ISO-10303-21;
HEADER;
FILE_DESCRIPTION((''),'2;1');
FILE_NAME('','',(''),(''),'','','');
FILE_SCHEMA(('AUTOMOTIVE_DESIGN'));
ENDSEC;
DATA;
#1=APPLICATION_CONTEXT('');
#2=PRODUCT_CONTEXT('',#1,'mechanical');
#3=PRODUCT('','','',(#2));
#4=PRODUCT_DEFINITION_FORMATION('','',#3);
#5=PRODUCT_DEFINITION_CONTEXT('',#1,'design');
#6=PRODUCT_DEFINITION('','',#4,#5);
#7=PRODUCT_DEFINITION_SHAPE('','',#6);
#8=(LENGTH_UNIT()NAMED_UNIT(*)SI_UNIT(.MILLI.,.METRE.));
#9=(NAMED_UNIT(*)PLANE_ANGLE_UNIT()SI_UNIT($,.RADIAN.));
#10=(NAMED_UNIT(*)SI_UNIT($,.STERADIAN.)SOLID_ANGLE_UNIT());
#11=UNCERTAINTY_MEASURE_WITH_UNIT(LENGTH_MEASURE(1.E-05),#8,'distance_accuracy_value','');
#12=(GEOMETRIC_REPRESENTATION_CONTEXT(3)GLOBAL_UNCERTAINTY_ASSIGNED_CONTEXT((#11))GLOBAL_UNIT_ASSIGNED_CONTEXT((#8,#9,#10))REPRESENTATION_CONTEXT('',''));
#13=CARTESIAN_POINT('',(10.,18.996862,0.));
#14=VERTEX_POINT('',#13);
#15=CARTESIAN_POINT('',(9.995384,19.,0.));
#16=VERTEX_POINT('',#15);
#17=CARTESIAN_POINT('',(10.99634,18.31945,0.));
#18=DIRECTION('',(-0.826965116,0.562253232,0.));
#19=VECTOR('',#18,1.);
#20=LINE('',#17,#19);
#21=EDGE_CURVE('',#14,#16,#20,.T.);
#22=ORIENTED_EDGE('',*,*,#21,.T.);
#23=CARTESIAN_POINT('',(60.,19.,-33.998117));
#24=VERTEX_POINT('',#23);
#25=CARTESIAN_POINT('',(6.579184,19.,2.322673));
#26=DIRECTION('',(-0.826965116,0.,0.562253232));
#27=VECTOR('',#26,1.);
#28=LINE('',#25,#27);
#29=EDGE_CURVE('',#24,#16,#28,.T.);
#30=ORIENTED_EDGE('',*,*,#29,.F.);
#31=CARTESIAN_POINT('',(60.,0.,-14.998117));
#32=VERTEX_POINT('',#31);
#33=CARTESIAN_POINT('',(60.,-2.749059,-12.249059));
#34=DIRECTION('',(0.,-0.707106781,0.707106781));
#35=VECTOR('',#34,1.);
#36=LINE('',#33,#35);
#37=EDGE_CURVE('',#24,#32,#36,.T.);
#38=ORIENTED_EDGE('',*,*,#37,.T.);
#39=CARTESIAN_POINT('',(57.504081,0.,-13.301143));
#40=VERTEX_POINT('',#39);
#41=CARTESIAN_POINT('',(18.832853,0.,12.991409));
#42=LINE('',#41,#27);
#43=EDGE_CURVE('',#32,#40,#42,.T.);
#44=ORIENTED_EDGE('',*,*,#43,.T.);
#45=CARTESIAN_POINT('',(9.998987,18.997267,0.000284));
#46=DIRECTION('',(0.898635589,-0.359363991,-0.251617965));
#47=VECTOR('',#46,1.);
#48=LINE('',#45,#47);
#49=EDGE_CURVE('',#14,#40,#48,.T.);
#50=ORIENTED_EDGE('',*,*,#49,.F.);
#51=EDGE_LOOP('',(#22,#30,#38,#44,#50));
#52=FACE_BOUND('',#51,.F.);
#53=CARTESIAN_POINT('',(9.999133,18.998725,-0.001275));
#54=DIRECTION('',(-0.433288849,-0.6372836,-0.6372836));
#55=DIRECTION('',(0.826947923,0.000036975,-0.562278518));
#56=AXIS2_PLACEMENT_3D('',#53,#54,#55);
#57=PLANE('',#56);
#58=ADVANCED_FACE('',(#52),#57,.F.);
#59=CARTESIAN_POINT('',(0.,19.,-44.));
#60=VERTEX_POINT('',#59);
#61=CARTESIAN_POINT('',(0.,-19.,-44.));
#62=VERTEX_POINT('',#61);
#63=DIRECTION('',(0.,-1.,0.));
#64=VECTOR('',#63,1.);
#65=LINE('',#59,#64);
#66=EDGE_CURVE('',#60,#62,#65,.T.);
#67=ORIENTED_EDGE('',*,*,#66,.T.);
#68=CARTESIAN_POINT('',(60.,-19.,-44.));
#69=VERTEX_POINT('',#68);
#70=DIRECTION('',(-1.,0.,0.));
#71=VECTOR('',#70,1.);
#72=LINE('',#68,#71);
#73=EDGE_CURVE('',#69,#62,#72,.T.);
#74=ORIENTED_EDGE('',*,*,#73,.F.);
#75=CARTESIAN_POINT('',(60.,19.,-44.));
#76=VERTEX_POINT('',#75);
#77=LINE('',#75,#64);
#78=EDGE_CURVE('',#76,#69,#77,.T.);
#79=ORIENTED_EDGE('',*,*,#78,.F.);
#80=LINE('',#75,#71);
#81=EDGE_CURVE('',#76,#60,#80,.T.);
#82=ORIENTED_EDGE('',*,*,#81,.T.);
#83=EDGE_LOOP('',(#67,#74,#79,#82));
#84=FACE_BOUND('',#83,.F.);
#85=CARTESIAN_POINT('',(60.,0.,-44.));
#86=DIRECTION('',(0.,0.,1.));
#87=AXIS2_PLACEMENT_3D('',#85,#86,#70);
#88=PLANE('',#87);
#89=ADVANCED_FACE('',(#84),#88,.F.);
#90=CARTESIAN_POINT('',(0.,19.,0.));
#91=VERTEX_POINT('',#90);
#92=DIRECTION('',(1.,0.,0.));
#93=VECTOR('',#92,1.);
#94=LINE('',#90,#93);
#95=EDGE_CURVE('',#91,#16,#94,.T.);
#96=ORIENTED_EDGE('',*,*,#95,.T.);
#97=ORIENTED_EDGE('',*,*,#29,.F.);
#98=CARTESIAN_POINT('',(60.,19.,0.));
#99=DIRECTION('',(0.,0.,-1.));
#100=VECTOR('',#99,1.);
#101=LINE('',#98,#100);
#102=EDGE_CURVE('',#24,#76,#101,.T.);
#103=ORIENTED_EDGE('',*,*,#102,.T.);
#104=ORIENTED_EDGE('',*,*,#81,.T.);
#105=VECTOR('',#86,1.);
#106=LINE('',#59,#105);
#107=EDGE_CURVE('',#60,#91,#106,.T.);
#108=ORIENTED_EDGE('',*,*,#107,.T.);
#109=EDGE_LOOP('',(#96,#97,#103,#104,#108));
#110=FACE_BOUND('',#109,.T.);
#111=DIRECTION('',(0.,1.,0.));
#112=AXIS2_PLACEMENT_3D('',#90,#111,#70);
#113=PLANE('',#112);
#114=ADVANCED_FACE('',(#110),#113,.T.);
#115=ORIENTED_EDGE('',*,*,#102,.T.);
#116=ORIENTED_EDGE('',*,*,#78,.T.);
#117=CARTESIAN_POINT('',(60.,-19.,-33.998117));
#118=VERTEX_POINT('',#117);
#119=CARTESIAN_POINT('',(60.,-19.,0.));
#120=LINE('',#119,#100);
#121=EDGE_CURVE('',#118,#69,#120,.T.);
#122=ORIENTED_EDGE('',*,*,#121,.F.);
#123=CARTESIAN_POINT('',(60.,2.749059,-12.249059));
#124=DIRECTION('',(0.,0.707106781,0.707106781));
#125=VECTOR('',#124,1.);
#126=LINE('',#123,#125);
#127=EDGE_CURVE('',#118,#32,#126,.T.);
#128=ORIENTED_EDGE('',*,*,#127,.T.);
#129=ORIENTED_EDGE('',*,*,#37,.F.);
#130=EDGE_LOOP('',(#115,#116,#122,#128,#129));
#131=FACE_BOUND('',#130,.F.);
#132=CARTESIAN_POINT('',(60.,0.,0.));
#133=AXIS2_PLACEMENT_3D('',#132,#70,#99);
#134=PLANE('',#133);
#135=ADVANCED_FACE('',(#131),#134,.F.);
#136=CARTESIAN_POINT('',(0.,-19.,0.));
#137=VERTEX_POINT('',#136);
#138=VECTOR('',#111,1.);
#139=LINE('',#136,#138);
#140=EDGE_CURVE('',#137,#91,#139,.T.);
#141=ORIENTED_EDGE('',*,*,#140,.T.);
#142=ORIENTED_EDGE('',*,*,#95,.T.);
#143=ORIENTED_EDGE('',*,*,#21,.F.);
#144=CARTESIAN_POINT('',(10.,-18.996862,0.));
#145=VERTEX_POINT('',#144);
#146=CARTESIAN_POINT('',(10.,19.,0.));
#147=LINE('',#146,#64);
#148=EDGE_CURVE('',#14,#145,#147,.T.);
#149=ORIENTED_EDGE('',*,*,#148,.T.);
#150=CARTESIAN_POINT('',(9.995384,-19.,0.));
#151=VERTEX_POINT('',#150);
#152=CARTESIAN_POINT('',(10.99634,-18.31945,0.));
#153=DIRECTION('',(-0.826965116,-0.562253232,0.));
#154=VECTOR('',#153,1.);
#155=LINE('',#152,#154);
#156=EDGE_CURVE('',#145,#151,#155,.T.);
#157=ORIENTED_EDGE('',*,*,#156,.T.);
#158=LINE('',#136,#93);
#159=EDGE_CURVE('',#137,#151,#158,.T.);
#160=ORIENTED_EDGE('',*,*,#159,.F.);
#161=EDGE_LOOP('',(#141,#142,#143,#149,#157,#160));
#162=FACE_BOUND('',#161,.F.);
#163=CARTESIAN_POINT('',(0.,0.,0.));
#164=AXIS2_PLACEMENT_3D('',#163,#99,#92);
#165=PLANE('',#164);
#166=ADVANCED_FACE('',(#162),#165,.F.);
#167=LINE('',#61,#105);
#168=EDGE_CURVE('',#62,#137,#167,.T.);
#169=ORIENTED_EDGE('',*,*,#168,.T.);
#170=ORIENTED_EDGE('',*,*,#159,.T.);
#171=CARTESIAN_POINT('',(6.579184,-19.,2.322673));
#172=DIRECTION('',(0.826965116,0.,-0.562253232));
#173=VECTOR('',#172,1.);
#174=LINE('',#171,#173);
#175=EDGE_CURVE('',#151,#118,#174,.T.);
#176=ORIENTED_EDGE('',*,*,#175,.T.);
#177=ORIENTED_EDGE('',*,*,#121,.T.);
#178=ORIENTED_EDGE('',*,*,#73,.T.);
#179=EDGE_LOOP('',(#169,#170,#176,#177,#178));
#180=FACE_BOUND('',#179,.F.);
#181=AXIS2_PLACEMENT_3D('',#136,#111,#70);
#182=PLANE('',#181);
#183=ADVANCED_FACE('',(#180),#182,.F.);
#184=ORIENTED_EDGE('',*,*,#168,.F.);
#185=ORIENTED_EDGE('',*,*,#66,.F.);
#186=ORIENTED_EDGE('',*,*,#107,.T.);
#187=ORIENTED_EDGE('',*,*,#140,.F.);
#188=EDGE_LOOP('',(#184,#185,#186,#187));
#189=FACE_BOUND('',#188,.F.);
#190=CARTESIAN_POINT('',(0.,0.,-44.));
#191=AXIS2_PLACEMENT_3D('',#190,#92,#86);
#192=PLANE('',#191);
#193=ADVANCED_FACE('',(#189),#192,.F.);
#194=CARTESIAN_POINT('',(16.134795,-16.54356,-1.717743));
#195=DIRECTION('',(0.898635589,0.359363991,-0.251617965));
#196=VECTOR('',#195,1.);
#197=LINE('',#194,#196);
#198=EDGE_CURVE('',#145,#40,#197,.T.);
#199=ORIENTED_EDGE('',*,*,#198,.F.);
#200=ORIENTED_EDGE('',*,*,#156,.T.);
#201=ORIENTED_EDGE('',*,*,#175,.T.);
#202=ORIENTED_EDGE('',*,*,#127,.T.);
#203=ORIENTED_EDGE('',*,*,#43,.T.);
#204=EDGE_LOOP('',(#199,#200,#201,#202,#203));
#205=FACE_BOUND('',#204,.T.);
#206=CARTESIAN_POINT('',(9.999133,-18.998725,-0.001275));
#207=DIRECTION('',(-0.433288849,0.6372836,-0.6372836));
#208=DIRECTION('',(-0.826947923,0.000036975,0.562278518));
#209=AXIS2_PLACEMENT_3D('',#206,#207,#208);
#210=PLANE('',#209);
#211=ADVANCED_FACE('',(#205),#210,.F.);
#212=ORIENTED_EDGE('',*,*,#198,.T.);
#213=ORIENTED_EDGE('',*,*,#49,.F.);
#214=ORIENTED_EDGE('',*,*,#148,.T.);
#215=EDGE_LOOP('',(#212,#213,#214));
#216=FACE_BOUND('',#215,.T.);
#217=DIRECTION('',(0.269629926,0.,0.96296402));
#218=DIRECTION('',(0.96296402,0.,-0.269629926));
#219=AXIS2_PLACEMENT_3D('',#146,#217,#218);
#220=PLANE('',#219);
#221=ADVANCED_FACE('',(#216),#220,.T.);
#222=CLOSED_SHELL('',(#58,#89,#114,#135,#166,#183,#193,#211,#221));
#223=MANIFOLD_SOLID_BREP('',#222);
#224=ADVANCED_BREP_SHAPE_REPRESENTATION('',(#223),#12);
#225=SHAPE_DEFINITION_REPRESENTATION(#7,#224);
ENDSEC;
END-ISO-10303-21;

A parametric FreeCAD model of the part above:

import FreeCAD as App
import Part
import Sketcher
from FreeCAD import Vector

doc = App.newDocument("Part")
params = doc.addObject("Spreadsheet::Sheet", "Params")
for row, (alias, value) in enumerate([
    ("sketch1_width", "60 mm"),
    ("sketch1_height", "44 mm"),
    ("pad1_length", "38 mm"),
    ("sketch2_width", "50 mm"),
    ("sketch2_height", "14 mm"),
    ("pocket1_length", "40 mm"),
    ("pocket2_length", "40 mm"),
], start=1):
    params.set(f"A{row}", alias)
    params.set(f"B{row}", "=" + value)
    params.setAlias(f"B{row}", alias)

body = doc.addObject("PartDesign::Body", "Body")

# Sketch on XZ plane
sketch1 = doc.addObject("Sketcher::SketchObject", "Sketch")
body.addObject(sketch1)
sketch1.AttachmentSupport = (doc.XZ_Plane, [""])
sketch1.MapMode = "FlatFace"
sketch1.addGeometry(Part.LineSegment(Vector(0, -44, 0), Vector(0, 0, 0)), False)
sketch1.addGeometry(Part.LineSegment(Vector(0, 0, 0), Vector(60, 0, 0)), False)
sketch1.addGeometry(Part.LineSegment(Vector(60, 0, 0), Vector(60, -44, 0)), False)
sketch1.addGeometry(Part.LineSegment(Vector(60, -44, 0), Vector(0, -44, 0)), False)
sketch1.addConstraint(Sketcher.Constraint("Coincident", 0, 2, 1, 1))
sketch1.addConstraint(Sketcher.Constraint("Coincident", 1, 2, 2, 1))
sketch1.addConstraint(Sketcher.Constraint("Coincident", 2, 2, 3, 1))
sketch1.addConstraint(Sketcher.Constraint("Coincident", 3, 2, 0, 1))
sketch1.addConstraint(Sketcher.Constraint("Vertical", 0))
sketch1.addConstraint(Sketcher.Constraint("Horizontal", 1))
sketch1.addConstraint(Sketcher.Constraint("Vertical", 2))
sketch1.addConstraint(Sketcher.Constraint("Horizontal", 3))
sketch1.addConstraint(Sketcher.Constraint("Coincident", 0, 2, -1, 1))
sketch1.addConstraint(Sketcher.Constraint("DistanceX", 1, 1, 1, 2, 60.0))
sketch1.addConstraint(Sketcher.Constraint("DistanceY", 0, 1, 0, 2, 44.0))
sketch1.setExpression("Constraints[9]", "Params.sketch1_width")
sketch1.setExpression("Constraints[10]", "Params.sketch1_height")
pad1 = doc.addObject("PartDesign::Pad", "Pad")
body.addObject(pad1)
pad1.Profile = sketch1
pad1.setExpression("Length", "Params.pad1_length")
pad1.Midplane = True

# Sketch on XZ plane
sketch2 = doc.addObject("Sketcher::SketchObject", "Sketch001")
body.addObject(sketch2)
sketch2.AttachmentSupport = (doc.XZ_Plane, [""])
sketch2.MapMode = "FlatFace"
sketch2.AttachmentOffset = App.Placement(Vector(0, 0, -19), App.Rotation())
sketch2.addGeometry(Part.LineSegment(Vector(60, -14, 0), Vector(10, 0, 0)), False)
sketch2.addGeometry(Part.LineSegment(Vector(10, 0, 0), Vector(60, 0, 0)), False)
sketch2.addGeometry(Part.LineSegment(Vector(60, 0, 0), Vector(60, -14, 0)), False)
sketch2.addConstraint(Sketcher.Constraint("Coincident", 0, 2, 1, 1))
sketch2.addConstraint(Sketcher.Constraint("Coincident", 1, 2, 2, 1))
sketch2.addConstraint(Sketcher.Constraint("Coincident", 2, 2, 0, 1))
sketch2.addConstraint(Sketcher.Constraint("Horizontal", 1))
sketch2.addConstraint(Sketcher.Constraint("Vertical", 2))
sketch2.addConstraint(Sketcher.Constraint("PointOnObject", 0, 2, -1))
sketch2.addConstraint(Sketcher.Constraint("DistanceX", -1, 1, 0, 2, 10.0))
sketch2.addConstraint(Sketcher.Constraint("DistanceX", 1, 1, 1, 2, 50.0))
sketch2.addConstraint(Sketcher.Constraint("DistanceY", 2, 2, 2, 1, 14.0))
sketch2.setExpression("Constraints[7]", "Params.sketch2_width")
sketch2.setExpression("Constraints[8]", "Params.sketch2_height")
pocket1 = doc.addObject("PartDesign::Pocket", "Pocket")
body.addObject(pocket1)
pocket1.Profile = sketch2
pocket1.setExpression("Length", "Params.pocket1_length")
pocket1.Reversed = True

# Sketch on an angled plane
sketch3 = doc.addObject("Sketcher::SketchObject", "Sketch002")
body.addObject(sketch3)
sketch3.Placement = App.Placement(Vector(10, 19, 0), App.Rotation(Vector(0.826947923, 0.000036975, -0.562278518), Vector(0.358354442, -0.770629361, 0.526984329), Vector(-0.433288849, -0.6372836, -0.6372836), "ZXY"))
sketch3.addGeometry(Part.LineSegment(Vector(-15, 29, 0), Vector(-15, -12, 0)), False)
sketch3.addGeometry(Part.LineSegment(Vector(-15, -12, 0), Vector(94, -12, 0)), False)
sketch3.addGeometry(Part.LineSegment(Vector(94, -12, 0), Vector(94, 29, 0)), False)
sketch3.addGeometry(Part.LineSegment(Vector(94, 29, 0), Vector(-15, 29, 0)), False)
sketch3.addConstraint(Sketcher.Constraint("Coincident", 0, 2, 1, 1))
sketch3.addConstraint(Sketcher.Constraint("Coincident", 1, 2, 2, 1))
sketch3.addConstraint(Sketcher.Constraint("Coincident", 2, 2, 3, 1))
sketch3.addConstraint(Sketcher.Constraint("Coincident", 3, 2, 0, 1))
sketch3.addConstraint(Sketcher.Constraint("Vertical", 0))
sketch3.addConstraint(Sketcher.Constraint("Horizontal", 1))
sketch3.addConstraint(Sketcher.Constraint("Vertical", 2))
sketch3.addConstraint(Sketcher.Constraint("Horizontal", 3))
sketch3.addConstraint(Sketcher.Constraint("DistanceX", 1, 1, 1, 2, 108.8713))
sketch3.addConstraint(Sketcher.Constraint("DistanceY", 0, 2, 0, 1, 41.1384))
sketch3.addConstraint(Sketcher.Constraint("DistanceX", -1, 1, 1, 2, 93.717))
sketch3.addConstraint(Sketcher.Constraint("DistanceY", 0, 2, -1, 1, 12.3218))
pocket2 = doc.addObject("PartDesign::Pocket", "Pocket001")
body.addObject(pocket2)
pocket2.Profile = sketch3
pocket2.setExpression("Length", "Params.pocket2_length")
doc.recompute()

mirrored = doc.addObject("PartDesign::Mirrored", "Mirrored")
body.addObject(mirrored)
mirrored.Originals = [pocket2]
mirrored.MirrorPlane = (doc.XZ_Plane, [""])
body.Tip = mirrored

doc.recompute()
